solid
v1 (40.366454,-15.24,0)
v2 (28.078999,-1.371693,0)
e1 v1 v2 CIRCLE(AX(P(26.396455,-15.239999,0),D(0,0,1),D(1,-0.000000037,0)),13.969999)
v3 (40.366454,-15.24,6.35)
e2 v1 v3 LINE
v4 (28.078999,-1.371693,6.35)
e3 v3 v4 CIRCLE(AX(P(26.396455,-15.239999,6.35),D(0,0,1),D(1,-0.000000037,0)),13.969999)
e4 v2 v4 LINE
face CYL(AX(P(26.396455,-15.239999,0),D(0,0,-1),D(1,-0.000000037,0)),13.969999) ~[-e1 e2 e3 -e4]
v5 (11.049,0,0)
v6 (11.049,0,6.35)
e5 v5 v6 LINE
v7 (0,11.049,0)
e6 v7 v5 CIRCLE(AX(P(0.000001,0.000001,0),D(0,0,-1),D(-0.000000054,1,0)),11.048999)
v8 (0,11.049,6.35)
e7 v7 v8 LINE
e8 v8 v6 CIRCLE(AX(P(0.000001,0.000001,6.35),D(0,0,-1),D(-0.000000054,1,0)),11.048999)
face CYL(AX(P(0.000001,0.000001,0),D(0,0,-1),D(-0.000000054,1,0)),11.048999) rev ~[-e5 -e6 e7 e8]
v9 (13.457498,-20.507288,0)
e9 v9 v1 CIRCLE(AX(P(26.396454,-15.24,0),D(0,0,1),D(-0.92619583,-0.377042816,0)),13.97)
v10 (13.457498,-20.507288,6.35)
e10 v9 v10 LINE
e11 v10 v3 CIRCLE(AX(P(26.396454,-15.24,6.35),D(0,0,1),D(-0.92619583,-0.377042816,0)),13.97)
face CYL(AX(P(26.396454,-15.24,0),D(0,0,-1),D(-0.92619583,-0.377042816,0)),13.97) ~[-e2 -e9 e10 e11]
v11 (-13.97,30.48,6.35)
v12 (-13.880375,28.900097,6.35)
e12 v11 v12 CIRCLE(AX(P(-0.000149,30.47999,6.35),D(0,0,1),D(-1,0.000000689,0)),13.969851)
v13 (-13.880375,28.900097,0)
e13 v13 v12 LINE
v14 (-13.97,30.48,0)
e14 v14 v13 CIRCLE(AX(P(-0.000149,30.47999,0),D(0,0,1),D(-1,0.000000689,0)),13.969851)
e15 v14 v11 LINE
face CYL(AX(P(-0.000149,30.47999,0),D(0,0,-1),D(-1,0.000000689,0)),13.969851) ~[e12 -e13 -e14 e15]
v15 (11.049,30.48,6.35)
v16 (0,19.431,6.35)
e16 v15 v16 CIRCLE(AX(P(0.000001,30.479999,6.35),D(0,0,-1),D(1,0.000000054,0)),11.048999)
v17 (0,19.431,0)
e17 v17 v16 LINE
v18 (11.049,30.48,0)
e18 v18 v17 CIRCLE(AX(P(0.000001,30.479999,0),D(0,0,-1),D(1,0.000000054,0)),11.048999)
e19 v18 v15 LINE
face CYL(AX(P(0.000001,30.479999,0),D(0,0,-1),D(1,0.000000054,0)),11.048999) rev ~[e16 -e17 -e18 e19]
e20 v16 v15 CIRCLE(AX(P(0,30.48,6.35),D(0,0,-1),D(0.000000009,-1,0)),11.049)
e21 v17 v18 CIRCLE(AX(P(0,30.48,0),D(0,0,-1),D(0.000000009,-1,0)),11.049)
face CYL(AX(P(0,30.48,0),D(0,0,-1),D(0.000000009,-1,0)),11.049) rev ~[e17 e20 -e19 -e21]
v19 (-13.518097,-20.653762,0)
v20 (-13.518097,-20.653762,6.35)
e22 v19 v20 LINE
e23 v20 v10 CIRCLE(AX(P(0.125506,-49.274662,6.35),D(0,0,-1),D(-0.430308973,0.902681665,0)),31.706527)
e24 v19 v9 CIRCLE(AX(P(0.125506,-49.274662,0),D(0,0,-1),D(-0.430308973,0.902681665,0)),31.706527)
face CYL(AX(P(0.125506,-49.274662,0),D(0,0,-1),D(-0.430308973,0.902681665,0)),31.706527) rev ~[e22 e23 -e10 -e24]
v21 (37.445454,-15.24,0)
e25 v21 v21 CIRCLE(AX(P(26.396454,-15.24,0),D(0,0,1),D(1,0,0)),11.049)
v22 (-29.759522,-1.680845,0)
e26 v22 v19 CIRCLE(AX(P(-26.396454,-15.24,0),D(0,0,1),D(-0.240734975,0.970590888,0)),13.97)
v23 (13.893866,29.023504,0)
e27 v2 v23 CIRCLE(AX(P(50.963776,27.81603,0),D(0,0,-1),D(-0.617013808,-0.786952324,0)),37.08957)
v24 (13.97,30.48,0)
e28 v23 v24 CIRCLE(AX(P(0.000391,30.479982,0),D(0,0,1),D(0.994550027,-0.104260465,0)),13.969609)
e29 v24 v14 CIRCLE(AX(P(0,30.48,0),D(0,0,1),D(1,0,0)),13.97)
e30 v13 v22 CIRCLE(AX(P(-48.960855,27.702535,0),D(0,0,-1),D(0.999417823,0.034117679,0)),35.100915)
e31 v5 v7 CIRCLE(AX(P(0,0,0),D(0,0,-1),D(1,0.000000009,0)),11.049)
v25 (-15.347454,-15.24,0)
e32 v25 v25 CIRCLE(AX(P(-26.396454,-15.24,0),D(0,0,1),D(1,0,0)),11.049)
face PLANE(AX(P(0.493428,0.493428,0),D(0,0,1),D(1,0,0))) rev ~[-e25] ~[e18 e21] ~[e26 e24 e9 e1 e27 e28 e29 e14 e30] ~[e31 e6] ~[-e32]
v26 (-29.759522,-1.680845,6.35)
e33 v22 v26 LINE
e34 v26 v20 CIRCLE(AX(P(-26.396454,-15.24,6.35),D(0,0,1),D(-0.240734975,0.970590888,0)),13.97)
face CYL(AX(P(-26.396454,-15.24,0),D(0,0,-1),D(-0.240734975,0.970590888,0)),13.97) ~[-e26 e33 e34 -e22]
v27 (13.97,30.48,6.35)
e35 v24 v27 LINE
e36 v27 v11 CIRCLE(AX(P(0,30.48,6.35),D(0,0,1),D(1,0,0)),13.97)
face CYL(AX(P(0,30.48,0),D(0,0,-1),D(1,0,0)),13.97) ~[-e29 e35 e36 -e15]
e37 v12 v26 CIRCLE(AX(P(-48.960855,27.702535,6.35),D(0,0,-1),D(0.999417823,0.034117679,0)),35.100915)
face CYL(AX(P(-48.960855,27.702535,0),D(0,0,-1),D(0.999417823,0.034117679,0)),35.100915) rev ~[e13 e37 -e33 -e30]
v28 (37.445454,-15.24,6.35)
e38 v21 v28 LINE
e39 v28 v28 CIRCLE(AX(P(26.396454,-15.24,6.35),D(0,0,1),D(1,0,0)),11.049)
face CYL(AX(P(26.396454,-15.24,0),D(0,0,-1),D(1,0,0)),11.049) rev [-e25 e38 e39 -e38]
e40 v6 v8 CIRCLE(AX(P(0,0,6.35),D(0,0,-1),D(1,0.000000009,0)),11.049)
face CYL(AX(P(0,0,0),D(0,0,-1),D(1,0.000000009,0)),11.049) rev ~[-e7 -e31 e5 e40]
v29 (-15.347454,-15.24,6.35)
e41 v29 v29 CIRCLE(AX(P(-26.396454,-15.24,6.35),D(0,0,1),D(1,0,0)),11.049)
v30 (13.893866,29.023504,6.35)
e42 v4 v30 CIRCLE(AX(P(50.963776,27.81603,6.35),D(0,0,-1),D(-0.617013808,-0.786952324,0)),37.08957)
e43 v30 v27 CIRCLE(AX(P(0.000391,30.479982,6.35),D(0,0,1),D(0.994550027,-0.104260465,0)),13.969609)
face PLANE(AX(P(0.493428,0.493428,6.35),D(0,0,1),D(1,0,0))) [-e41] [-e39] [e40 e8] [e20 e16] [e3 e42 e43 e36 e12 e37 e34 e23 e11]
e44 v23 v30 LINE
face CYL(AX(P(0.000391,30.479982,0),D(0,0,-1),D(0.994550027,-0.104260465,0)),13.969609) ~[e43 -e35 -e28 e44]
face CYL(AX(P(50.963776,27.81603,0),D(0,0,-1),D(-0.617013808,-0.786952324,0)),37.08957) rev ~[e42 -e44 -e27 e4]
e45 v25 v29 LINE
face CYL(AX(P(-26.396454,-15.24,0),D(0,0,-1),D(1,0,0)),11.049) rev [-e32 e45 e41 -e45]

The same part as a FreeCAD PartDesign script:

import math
import FreeCAD as App
import Part
import Sketcher

V = App.Vector
Q = App.Units.Quantity

doc = App.newDocument("Part")
params = doc.addObject("Spreadsheet::Sheet", "Params")
for row, (alias, value) in enumerate([
    ("sketch1_diameter", "0.87 in"),
    ("sketch1_diameter2", "0.87 in"),
    ("sketch1_radius", "0.55 in"),
    ("sketch1_radius2", "0.55 in"),
    ("sketch1_radius3", "0.55 in"),
    ("pad1_length", "0.25 in"),
], start=1):
    params.set(f"A{row}", alias)
    params.set(f"B{row}", "=" + value)
    params.setAlias(f"B{row}", alias)

body = doc.addObject("PartDesign::Body", "Body")

# Sketch on XY plane
sketch1 = doc.addObject("Sketcher::SketchObject", "Sketch")
body.addObject(sketch1)
sketch1.AttachmentSupport = (doc.XY_Plane, [""])
sketch1.MapMode = "FlatFace"
sketch1.addGeometry(Part.ArcOfCircle(Part.Circle(V(50.963776, 27.81603, 0), V(0, 0, 1), 37.08957), math.radians(178.134371), math.radians(231.901607)), False)
sketch1.addGeometry(Part.ArcOfCircle(Part.Circle(V(0.000391, 30.479982, 0), V(0, 0, 1), 13.969609), math.radians(-5.98456), math.radians(0.000074)), False)
sketch1.addGeometry(Part.ArcOfCircle(Part.Circle(V(0, 30.48, 0), V(0, 0, 1), 13.97), math.radians(0), math.radians(180)), False)
sketch1.addGeometry(Part.ArcOfCircle(Part.Circle(V(-0.000149, 30.47999, 0), V(0, 0, 1), 13.969851), math.radians(179.999961), math.radians(186.493649)), False)
sketch1.addGeometry(Part.ArcOfCircle(Part.Circle(V(-48.960855, 27.702535, 0), V(0, 0, 1), 35.100915), math.radians(-56.836349), math.radians(1.955178)), False)
sketch1.addGeometry(Part.ArcOfCircle(Part.Circle(V(-26.396454, -15.24, 0), V(0, 0, 1), 13.97), math.radians(103.929923), math.radians(337.199247)), False)
sketch1.addGeometry(Part.ArcOfCircle(Part.Circle(V(0.125506, -49.274662, 0), V(0, 0, 1), 31.706527), math.radians(65.135041), math.radians(115.48717)), False)
sketch1.addGeometry(Part.ArcOfCircle(Part.Circle(V(26.396454, -15.24, 0), V(0, 0, 1), 13.97), math.radians(-157.849372), math.radians(-0.000001)), False)
sketch1.addGeometry(Part.ArcOfCircle(Part.Circle(V(26.396455, -15.239999, 0), V(0, 0, 1), 13.969999), math.radians(-0.000002), math.radians(83.082513)), False)
sketch1.addGeometry(Part.Circle(V(-26.396454, -15.24, 0), V(0, 0, 1), 11.049), False)
sketch1.addGeometry(Part.ArcOfCircle(Part.Circle(V(0, 0, 0), V(0, 0, 1), 11.049), math.radians(89.999999), math.radians(360.000001)), False)
sketch1.addGeometry(Part.ArcOfCircle(Part.Circle(V(0.000001, 0.000001, 0), V(0, 0, 1), 11.048999), math.radians(-0.000003), math.radians(90.000003)), False)
sketch1.addGeometry(Part.Circle(V(26.396454, -15.24, 0), V(0, 0, 1), 11.049), False)
sketch1.addGeometry(Part.ArcOfCircle(Part.Circle(V(0, 30.48, 0), V(0, 0, 1), 11.049), math.radians(-0.000001), math.radians(270.000001)), False)
sketch1.addGeometry(Part.ArcOfCircle(Part.Circle(V(0.000001, 30.479999, 0), V(0, 0, 1), 11.048999), math.radians(-90.000003), math.radians(0.000003)), False)
sketch1.addConstraint(Sketcher.Constraint("Coincident", 0, 1, 1, 1))
sketch1.addConstraint(Sketcher.Constraint("Coincident", 1, 2, 2, 1))
sketch1.addConstraint(Sketcher.Constraint("Coincident", 2, 2, 3, 1))
sketch1.addConstraint(Sketcher.Constraint("Coincident", 3, 2, 4, 2))
sketch1.addConstraint(Sketcher.Constraint("Coincident", 4, 1, 5, 1))
sketch1.addConstraint(Sketcher.Constraint("Coincident", 5, 2, 6, 2))
sketch1.addConstraint(Sketcher.Constraint("Coincident", 6, 1, 7, 1))
sketch1.addConstraint(Sketcher.Constraint("Coincident", 7, 2, 8, 1))
sketch1.addConstraint(Sketcher.Constraint("Coincident", 8, 2, 0, 2))
sketch1.addConstraint(Sketcher.Constraint("Coincident", 10, 1, 11, 2))
sketch1.addConstraint(Sketcher.Constraint("Coincident", 11, 1, 10, 2))
sketch1.addConstraint(Sketcher.Constraint("Coincident", 13, 1, 14, 2))
sketch1.addConstraint(Sketcher.Constraint("Coincident", 14, 1, 13, 2))
sketch1.addConstraint(Sketcher.Constraint("Coincident", 10, 3, -1, 1))
sketch1.addConstraint(Sketcher.Constraint("Coincident", 8, 3, 7, 3))
sketch1.addConstraint(Sketcher.Constraint("Coincident", 9, 3, 5, 3))
sketch1.addConstraint(Sketcher.Constraint("Coincident", 12, 3, 7, 3))
sketch1.addConstraint(Sketcher.Constraint("Coincident", 13, 3, 2, 3))
sketch1.addConstraint(Sketcher.Constraint("PointOnObject", 2, 3, -2))
sketch1.addConstraint(Sketcher.Constraint("PointOnObject", 14, 3, -2))
sketch1.addConstraint(Sketcher.Constraint("PointOnObject", 10, 1, -2))
sketch1.addConstraint(Sketcher.Constraint("PointOnObject", 11, 1, -1))
sketch1.addConstraint(Sketcher.Constraint("PointOnObject", 14, 1, -2))
sketch1.addConstraint(Sketcher.Constraint("Diameter", 9, Q("0.87 in")))
sketch1.addConstraint(Sketcher.Constraint("Diameter", 12, Q("0.87 in")))
sketch1.addConstraint(Sketcher.Constraint("Radius", 2, Q("0.55 in")))
sketch1.addConstraint(Sketcher.Constraint("Radius", 5, Q("0.55 in")))
sketch1.addConstraint(Sketcher.Constraint("Radius", 7, Q("0.55 in")))
sketch1.addConstraint(Sketcher.Constraint("Radius", 10, Q("0.435 in")))
sketch1.addConstraint(Sketcher.Constraint("Radius", 11, Q("0.435 in")))
sketch1.addConstraint(Sketcher.Constraint("Radius", 13, Q("0.435 in")))
sketch1.addConstraint(Sketcher.Constraint("DistanceY", -1, 1, 2, 3, Q("1.2 in")))
sketch1.addConstraint(Sketcher.Constraint("DistanceY", 5, 3, -1, 1, Q("0.6 in")))
sketch1.addConstraint(Sketcher.Constraint("DistanceY", 7, 3, -1, 1, Q("0.6 in")))
sketch1.addConstraint(Sketcher.Constraint("DistanceY", -1, 1, 1, 2, Q("1.2 in")))
sketch1.addConstraint(Sketcher.Constraint("DistanceY", -1, 1, 2, 2, Q("1.2 in")))
sketch1.addConstraint(Sketcher.Constraint("DistanceY", 7, 2, -1, 1, Q("0.6 in")))
sketch1.addConstraint(Sketcher.Constraint("DistanceY", -1, 1, 13, 1, Q("1.2 in")))
sketch1.addConstraint(Sketcher.Constraint("Radius", 0, 37.08957))
sketch1.addConstraint(Sketcher.Constraint("Radius", 1, 13.969609))
sketch1.addConstraint(Sketcher.Constraint("Radius", 3, 13.969851))
sketch1.addConstraint(Sketcher.Constraint("Radius", 4, 35.100915))
sketch1.addConstraint(Sketcher.Constraint("Radius", 6, 31.706527))
sketch1.addConstraint(Sketcher.Constraint("DistanceX", -1, 1, 8, 2, 28.078999))
sketch1.addConstraint(Sketcher.Constraint("DistanceX", 4, 3, 5, 3, 22.5644))
sketch1.addConstraint(Sketcher.Constraint("DistanceX", 10, 3, 6, 1, 13.457498))
sketch1.addConstraint(Sketcher.Constraint("DistanceY", -1, 1, 0, 3, 27.81603))
sketch1.addConstraint(Sketcher.Constraint("DistanceY", -1, 1, 1, 3, 30.479982))
sketch1.addConstraint(Sketcher.Constraint("DistanceY", -1, 1, 3, 3, 30.47999))
sketch1.addConstraint(Sketcher.Constraint("DistanceY", 5, 2, -1, 1, 20.653762))
sketch1.addConstraint(Sketcher.Constraint("DistanceY", 6, 1, -1, 1, 20.507288))
sketch1.addConstraint(Sketcher.Constraint("DistanceX", 4, 3, 0, 3, 99.924631))
sketch1.addConstraint(Sketcher.Constraint("DistanceX", 4, 1, 9, 3, 3.363068))
sketch1.setExpression("Constraints[23]", "Params.sketch1_diameter")
sketch1.setExpression("Constraints[24]", "Params.sketch1_diameter2")
sketch1.setExpression("Constraints[25]", "Params.sketch1_radius")
sketch1.setExpression("Constraints[26]", "Params.sketch1_radius2")
sketch1.setExpression("Constraints[27]", "Params.sketch1_radius3")
pad1 = doc.addObject("PartDesign::Pad", "Pad")
body.addObject(pad1)
pad1.Profile = sketch1
pad1.setExpression("Length", "Params.pad1_length")

doc.recompute()
